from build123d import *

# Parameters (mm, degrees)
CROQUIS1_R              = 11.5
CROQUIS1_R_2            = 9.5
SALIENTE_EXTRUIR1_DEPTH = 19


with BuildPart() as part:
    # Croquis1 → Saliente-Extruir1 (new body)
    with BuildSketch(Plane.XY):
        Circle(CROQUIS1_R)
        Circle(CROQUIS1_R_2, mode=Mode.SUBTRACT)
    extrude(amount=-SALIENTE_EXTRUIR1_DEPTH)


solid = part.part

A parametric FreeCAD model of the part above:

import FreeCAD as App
import Part
import Sketcher
from FreeCAD import Vector

doc = App.newDocument("Part")
body = doc.addObject("PartDesign::Body", "Body")

# Sketch on XY plane
sketch1 = doc.addObject("Sketcher::SketchObject", "Sketch")
body.addObject(sketch1)
sketch1.AttachmentSupport = (doc.XY_Plane, [""])
sketch1.MapMode = "FlatFace"
sketch1.addGeometry(Part.Circle(Vector(0, 0, 0), Vector(0, 0, 1), 12), False)
sketch1.addGeometry(Part.Circle(Vector(0, 0, 0), Vector(0, 0, 1), 10), False)
sketch1.addConstraint(Sketcher.Constraint("Coincident", 0, 3, -1, 1))
sketch1.addConstraint(Sketcher.Constraint("Coincident", 1, 3, -1, 1))
sketch1.addConstraint(Sketcher.Constraint("Diameter", 0, 23.0))
sketch1.addConstraint(Sketcher.Constraint("Diameter", 1, 19.0))
pad1 = doc.addObject("PartDesign::Pad", "Pad")
body.addObject(pad1)
pad1.Profile = sketch1
pad1.Length = 19
pad1.Reversed = True

doc.recompute()
